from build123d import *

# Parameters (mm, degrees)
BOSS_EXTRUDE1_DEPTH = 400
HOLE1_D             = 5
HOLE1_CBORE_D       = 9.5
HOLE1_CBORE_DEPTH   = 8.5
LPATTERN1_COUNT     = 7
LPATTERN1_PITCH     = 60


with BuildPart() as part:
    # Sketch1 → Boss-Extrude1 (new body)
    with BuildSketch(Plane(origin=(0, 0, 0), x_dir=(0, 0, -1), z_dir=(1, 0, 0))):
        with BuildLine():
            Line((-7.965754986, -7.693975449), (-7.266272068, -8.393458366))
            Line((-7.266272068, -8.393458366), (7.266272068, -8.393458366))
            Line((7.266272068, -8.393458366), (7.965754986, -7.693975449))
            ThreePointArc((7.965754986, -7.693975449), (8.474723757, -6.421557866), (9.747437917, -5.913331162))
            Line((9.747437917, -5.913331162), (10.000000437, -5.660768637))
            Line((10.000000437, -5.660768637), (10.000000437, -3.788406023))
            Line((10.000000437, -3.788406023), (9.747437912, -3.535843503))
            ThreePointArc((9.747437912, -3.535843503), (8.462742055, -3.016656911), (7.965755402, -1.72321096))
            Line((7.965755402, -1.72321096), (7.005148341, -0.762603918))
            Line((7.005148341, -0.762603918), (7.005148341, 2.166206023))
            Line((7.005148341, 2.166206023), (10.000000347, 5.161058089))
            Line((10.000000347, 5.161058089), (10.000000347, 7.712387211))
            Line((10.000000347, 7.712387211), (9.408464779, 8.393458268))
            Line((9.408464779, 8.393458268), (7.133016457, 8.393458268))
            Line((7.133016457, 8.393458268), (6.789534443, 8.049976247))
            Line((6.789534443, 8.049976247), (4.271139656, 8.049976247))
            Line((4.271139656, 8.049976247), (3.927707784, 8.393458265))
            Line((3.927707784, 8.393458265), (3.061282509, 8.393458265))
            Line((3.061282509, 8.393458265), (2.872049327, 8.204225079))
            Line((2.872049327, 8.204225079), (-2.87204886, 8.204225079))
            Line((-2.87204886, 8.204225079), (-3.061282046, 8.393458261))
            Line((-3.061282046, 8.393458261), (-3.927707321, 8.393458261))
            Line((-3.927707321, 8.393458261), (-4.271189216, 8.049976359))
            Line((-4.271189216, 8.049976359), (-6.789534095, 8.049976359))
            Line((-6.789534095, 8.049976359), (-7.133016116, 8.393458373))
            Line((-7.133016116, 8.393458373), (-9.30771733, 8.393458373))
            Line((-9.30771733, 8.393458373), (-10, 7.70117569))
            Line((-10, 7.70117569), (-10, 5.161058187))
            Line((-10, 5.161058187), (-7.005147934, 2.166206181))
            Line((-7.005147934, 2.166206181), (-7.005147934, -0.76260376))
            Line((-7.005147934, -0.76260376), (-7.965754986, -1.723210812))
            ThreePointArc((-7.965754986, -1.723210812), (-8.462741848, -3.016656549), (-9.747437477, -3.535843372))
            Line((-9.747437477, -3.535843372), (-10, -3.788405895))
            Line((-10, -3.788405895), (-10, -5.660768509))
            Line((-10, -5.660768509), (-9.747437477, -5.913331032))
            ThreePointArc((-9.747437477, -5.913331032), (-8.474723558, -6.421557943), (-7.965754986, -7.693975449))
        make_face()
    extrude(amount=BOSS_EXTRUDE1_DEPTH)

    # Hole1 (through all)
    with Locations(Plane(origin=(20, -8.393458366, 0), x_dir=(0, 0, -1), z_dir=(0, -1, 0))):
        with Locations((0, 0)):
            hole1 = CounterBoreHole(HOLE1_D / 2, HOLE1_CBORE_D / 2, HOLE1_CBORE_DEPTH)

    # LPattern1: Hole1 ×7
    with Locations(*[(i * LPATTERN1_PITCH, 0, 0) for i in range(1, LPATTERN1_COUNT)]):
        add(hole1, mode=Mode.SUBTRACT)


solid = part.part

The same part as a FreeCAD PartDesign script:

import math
import FreeCAD as App
import Part
import Sketcher

doc = App.newDocument("Part")
body = doc.addObject("PartDesign::Body", "Body")

# Sketch on YZ plane
sketch1 = body.newObject("Sketcher::SketchObject", "Sketch")
sketch1.AttachmentSupport = (doc.getObject("YZ_Plane"), [""])
sketch1.MapMode = "FlatFace"
sketch1.addGeometry(Part.LineSegment(App.Vector(-7.69, 7.97, 0), App.Vector(-8.39, 7.27, 0)), False)
sketch1.addGeometry(Part.LineSegment(App.Vector(-8.39, 7.27, 0), App.Vector(-8.39, -7.27, 0)), False)
sketch1.addGeometry(Part.LineSegment(App.Vector(-8.39, -7.27, 0), App.Vector(-7.69, -7.97, 0)), False)
sketch1.addGeometry(Part.ArcOfCircle(Part.Circle(App.Vector(-7.65, -9.7, 0), App.Vector(0, 0, 1), 1.74), math.radians(-1), math.radians(91)), False)
sketch1.addGeometry(Part.LineSegment(App.Vector(-5.91, -9.75, 0), App.Vector(-5.66, -10, 0)), False)
sketch1.addGeometry(Part.LineSegment(App.Vector(-5.66, -10, 0), App.Vector(-3.79, -10, 0)), False)
sketch1.addGeometry(Part.LineSegment(App.Vector(-3.79, -10, 0), App.Vector(-3.54, -9.75, 0)), False)
sketch1.addGeometry(Part.ArcOfCircle(Part.Circle(App.Vector(-1.8, -9.7, 0), App.Vector(0, 0, 1), 1.74), math.radians(88), math.radians(181)), False)
sketch1.addGeometry(Part.LineSegment(App.Vector(-1.72, -7.97, 0), App.Vector(-0.76, -7.01, 0)), False)
sketch1.addGeometry(Part.LineSegment(App.Vector(-0.76, -7.01, 0), App.Vector(2.17, -7.01, 0)), False)
sketch1.addGeometry(Part.LineSegment(App.Vector(2.17, -7.01, 0), App.Vector(5.16, -10, 0)), False)
sketch1.addGeometry(Part.LineSegment(App.Vector(5.16, -10, 0), App.Vector(7.71, -10, 0)), False)
sketch1.addGeometry(Part.LineSegment(App.Vector(7.71, -10, 0), App.Vector(8.39, -9.41, 0)), False)
sketch1.addGeometry(Part.LineSegment(App.Vector(8.39, -9.41, 0), App.Vector(8.39, -7.13, 0)), False)
sketch1.addGeometry(Part.LineSegment(App.Vector(8.39, -7.13, 0), App.Vector(8.05, -6.79, 0)), False)
sketch1.addGeometry(Part.LineSegment(App.Vector(8.05, -6.79, 0), App.Vector(8.05, -4.27, 0)), False)
sketch1.addGeometry(Part.LineSegment(App.Vector(8.05, -4.27, 0), App.Vector(8.39, -3.93, 0)), False)
sketch1.addGeometry(Part.LineSegment(App.Vector(8.39, -3.93, 0), App.Vector(8.39, -3.06, 0)), False)
sketch1.addGeometry(Part.LineSegment(App.Vector(8.39, -3.06, 0), App.Vector(8.2, -2.87, 0)), False)
sketch1.addGeometry(Part.LineSegment(App.Vector(8.2, -2.87, 0), App.Vector(8.2, 2.87, 0)), False)
sketch1.addGeometry(Part.LineSegment(App.Vector(8.2, 2.87, 0), App.Vector(8.39, 3.06, 0)), False)
sketch1.addGeometry(Part.LineSegment(App.Vector(8.39, 3.06, 0), App.Vector(8.39, 3.93, 0)), False)
sketch1.addGeometry(Part.LineSegment(App.Vector(8.39, 3.93, 0), App.Vector(8.05, 4.27, 0)), False)
sketch1.addGeometry(Part.LineSegment(App.Vector(8.05, 4.27, 0), App.Vector(8.05, 6.79, 0)), False)
sketch1.addGeometry(Part.LineSegment(App.Vector(8.05, 6.79, 0), App.Vector(8.39, 7.13, 0)), False)
sketch1.addGeometry(Part.LineSegment(App.Vector(8.39, 7.13, 0), App.Vector(8.39, 9.31, 0)), False)
sketch1.addGeometry(Part.LineSegment(App.Vector(8.39, 9.31, 0), App.Vector(7.7, 10, 0)), False)
sketch1.addGeometry(Part.LineSegment(App.Vector(7.7, 10, 0), App.Vector(5.16, 10, 0)), False)
sketch1.addGeometry(Part.LineSegment(App.Vector(5.16, 10, 0), App.Vector(2.17, 7.01, 0)), False)
sketch1.addGeometry(Part.LineSegment(App.Vector(2.17, 7.01, 0), App.Vector(-0.76, 7.01, 0)), False)
sketch1.addGeometry(Part.LineSegment(App.Vector(-0.76, 7.01, 0), App.Vector(-1.72, 7.97, 0)), False)
sketch1.addGeometry(Part.ArcOfCircle(Part.Circle(App.Vector(-1.8, 9.7, 0), App.Vector(0, 0, 1), 1.74), math.radians(179), math.radians(272)), False)
sketch1.addGeometry(Part.LineSegment(App.Vector(-3.54, 9.75, 0), App.Vector(-3.79, 10, 0)), False)
sketch1.addGeometry(Part.LineSegment(App.Vector(-3.79, 10, 0), App.Vector(-5.66, 10, 0)), False)
sketch1.addGeometry(Part.LineSegment(App.Vector(-5.66, 10, 0), App.Vector(-5.91, 9.75, 0)), False)
sketch1.addGeometry(Part.ArcOfCircle(Part.Circle(App.Vector(-7.65, 9.7, 0), App.Vector(0, 0, 1), 1.74), math.radians(-91), math.radians(1)), False)
sketch1.addConstraint(Sketcher.Constraint("Coincident", 0, 2, 1, 1))
sketch1.addConstraint(Sketcher.Constraint("Coincident", 1, 2, 2, 1))
sketch1.addConstraint(Sketcher.Constraint("Coincident", 2, 2, 3, 2))
sketch1.addConstraint(Sketcher.Constraint("Coincident", 3, 1, 4, 1))
sketch1.addConstraint(Sketcher.Constraint("Coincident", 4, 2, 5, 1))
sketch1.addConstraint(Sketcher.Constraint("Coincident", 5, 2, 6, 1))
sketch1.addConstraint(Sketcher.Constraint("Coincident", 6, 2, 7, 2))
sketch1.addConstraint(Sketcher.Constraint("Coincident", 7, 1, 8, 1))
sketch1.addConstraint(Sketcher.Constraint("Coincident", 8, 2, 9, 1))
sketch1.addConstraint(Sketcher.Constraint("Coincident", 9, 2, 10, 1))
sketch1.addConstraint(Sketcher.Constraint("Coincident", 10, 2, 11, 1))
sketch1.addConstraint(Sketcher.Constraint("Coincident", 11, 2, 12, 1))
sketch1.addConstraint(Sketcher.Constraint("Coincident", 12, 2, 13, 1))
sketch1.addConstraint(Sketcher.Constraint("Coincident", 13, 2, 14, 1))
sketch1.addConstraint(Sketcher.Constraint("Coincident", 14, 2, 15, 1))
sketch1.addConstraint(Sketcher.Constraint("Coincident", 15, 2, 16, 1))
sketch1.addConstraint(Sketcher.Constraint("Coincident", 16, 2, 17, 1))
sketch1.addConstraint(Sketcher.Constraint("Coincident", 17, 2, 18, 1))
sketch1.addConstraint(Sketcher.Constraint("Coincident", 18, 2, 19, 1))
sketch1.addConstraint(Sketcher.Constraint("Coincident", 19, 2, 20, 1))
sketch1.addConstraint(Sketcher.Constraint("Coincident", 20, 2, 21, 1))
sketch1.addConstraint(Sketcher.Constraint("Coincident", 21, 2, 22, 1))
sketch1.addConstraint(Sketcher.Constraint("Coincident", 22, 2, 23, 1))
sketch1.addConstraint(Sketcher.Constraint("Coincident", 23, 2, 24, 1))
sketch1.addConstraint(Sketcher.Constraint("Coincident", 24, 2, 25, 1))
sketch1.addConstraint(Sketcher.Constraint("Coincident", 25, 2, 26, 1))
sketch1.addConstraint(Sketcher.Constraint("Coincident", 26, 2, 27, 1))
sketch1.addConstraint(Sketcher.Constraint("Coincident", 27, 2, 28, 1))
sketch1.addConstraint(Sketcher.Constraint("Coincident", 28, 2, 29, 1))
sketch1.addConstraint(Sketcher.Constraint("Coincident", 29, 2, 30, 1))
sketch1.addConstraint(Sketcher.Constraint("Coincident", 30, 2, 31, 2))
sketch1.addConstraint(Sketcher.Constraint("Coincident", 31, 1, 32, 1))
sketch1.addConstraint(Sketcher.Constraint("Coincident", 32, 2, 33, 1))
sketch1.addConstraint(Sketcher.Constraint("Coincident", 33, 2, 34, 1))
sketch1.addConstraint(Sketcher.Constraint("Coincident", 34, 2, 35, 2))
sketch1.addConstraint(Sketcher.Constraint("Coincident", 35, 1, 0, 1))
sketch1.addConstraint(Sketcher.Constraint("Vertical", 1))
sketch1.addConstraint(Sketcher.Constraint("Horizontal", 5))
sketch1.addConstraint(Sketcher.Constraint("Horizontal", 9))
sketch1.addConstraint(Sketcher.Constraint("Horizontal", 11))
sketch1.addConstraint(Sketcher.Constraint("Vertical", 13))
sketch1.addConstraint(Sketcher.Constraint("Vertical", 15))
sketch1.addConstraint(Sketcher.Constraint("Vertical", 17))
sketch1.addConstraint(Sketcher.Constraint("Vertical", 19))
sketch1.addConstraint(Sketcher.Constraint("Vertical", 21))
sketch1.addConstraint(Sketcher.Constraint("Vertical", 23))
sketch1.addConstraint(Sketcher.Constraint("Vertical", 25))
sketch1.addConstraint(Sketcher.Constraint("Horizontal", 27))
sketch1.addConstraint(Sketcher.Constraint("Horizontal", 29))
sketch1.addConstraint(Sketcher.Constraint("Horizontal", 33))
sketch1.addConstraint(Sketcher.Constraint("Equal", 3, 7))
sketch1.addConstraint(Sketcher.Constraint("Equal", 7, 31))
sketch1.addConstraint(Sketcher.Constraint("Equal", 31, 35))
sketch1.addConstraint(Sketcher.Constraint("Symmetric", 7, 3, 31, 3, -1))
sketch1.addConstraint(Sketcher.Constraint("Symmetric", 3, 3, 35, 3, -1))
sketch1.addConstraint(Sketcher.Constraint("Symmetric", 17, 2, 20, 2, -1))
sketch1.addConstraint(Sketcher.Constraint("Symmetric", 14, 2, 23, 2, -1))
sketch1.addConstraint(Sketcher.Constraint("Symmetric", 13, 2, 24, 2, -1))
sketch1.addConstraint(Sketcher.Constraint("Symmetric", 10, 2, 27, 2, -1))
sketch1.addConstraint(Sketcher.Constraint("Symmetric", 9, 2, 28, 2, -1))
sketch1.addConstraint(Sketcher.Constraint("Symmetric", 5, 2, 32, 2, -1))
sketch1.addConstraint(Sketcher.Constraint("Perpendicular", 0, 2))
sketch1.addConstraint(Sketcher.Constraint("Parallel", 2, 4))
sketch1.addConstraint(Sketcher.Constraint("Perpendicular", 4, 6))
sketch1.addConstraint(Sketcher.Constraint("Parallel", 6, 8))
sketch1.addConstraint(Sketcher.Constraint("Perpendicular", 8, 10))
sketch1.addConstraint(Sketcher.Constraint("Parallel", 10, 14))
sketch1.addConstraint(Sketcher.Constraint("Parallel", 14, 18))
sketch1.addConstraint(Sketcher.Constraint("Perpendicular", 18, 20))
sketch1.addConstraint(Sketcher.Constraint("Perpendicular", 20, 22))
sketch1.addConstraint(Sketcher.Constraint("Perpendicular", 22, 24))
sketch1.addConstraint(Sketcher.Constraint("Perpendicular", 24, 26))
sketch1.addConstraint(Sketcher.Constraint("Perpendicular", 28, 30))
sketch1.addConstraint(Sketcher.Constraint("Parallel", 30, 32))
sketch1.addConstraint(Sketcher.Constraint("Perpendicular", 32, 34))
sketch1.addConstraint(Sketcher.Constraint("Horizontal", 3, 1, 6, 2))
sketch1.addConstraint(Sketcher.Constraint("Horizontal", 2, 2, 7, 1))
sketch1.addConstraint(Sketcher.Constraint("Horizontal", 5, 2, 10, 2))
sketch1.addConstraint(Sketcher.Constraint("Horizontal", 31, 1, 34, 2))
sketch1.addConstraint(Sketcher.Constraint("Horizontal", 30, 2, 35, 1))
sketch1.addConstraint(Sketcher.Constraint("Vertical", 13, 2, 16, 2))
sketch1.addConstraint(Sketcher.Constraint("Vertical", 8, 2, 29, 2))
sketch1.addConstraint(Sketcher.Constraint("Equal", 17, 21))
sketch1.addConstraint(Sketcher.Constraint("DistanceY", 4, 2, -1, 1, 10.0))
sketch1.addConstraint(Sketcher.Constraint("Radius", 3, 1.738311))
sketch1.addConstraint(Sketcher.Constraint("DistanceY", 19, 1, 19, 2, 5.744098))
sketch1.addConstraint(Sketcher.Constraint("DistanceY", 25, 1, 25, 2, 2.174701))
sketch1.addConstraint(Sketcher.Constraint("DistanceX", 9, 1, 9, 2, 2.92881))
sketch1.addConstraint(Sketcher.Constraint("DistanceX", 11, 1, 11, 2, 2.551329))
sketch1.addConstraint(Sketcher.Constraint("DistanceY", 13, 1, 13, 2, 2.275448))
sketch1.addConstraint(Sketcher.Constraint("DistanceY", 3, 1, 3, 3, 0.043901))
sketch1.addConstraint(Sketcher.Constraint("DistanceX", 6, 2, 10, 2, 8.696902))
sketch1.addConstraint(Sketcher.Constraint("DistanceX", 7, 1, 11, 2, 9.435598))
sketch1.addConstraint(Sketcher.Constraint("DistanceX", 10, 2, 12, 2, 3.2324))
sketch1.addConstraint(Sketcher.Constraint("DistanceX", 26, 2, 23, 2, 0.348801))
sketch1.addConstraint(Sketcher.Constraint("Distance", 0, 0.989218))
sketch1.addConstraint(Sketcher.Constraint("Distance", 10, 4.23536))
sketch1.addConstraint(Sketcher.Constraint("Distance", 16, 0.485721))
sketch1.addConstraint(Sketcher.Constraint("DistanceX", 5, 1, 5, 2, 1.872363))
sketch1.addConstraint(Sketcher.Constraint("DistanceX", 27, 2, 27, 1, 2.540118))
sketch1.addConstraint(Sketcher.Constraint("DistanceY", 15, 1, 15, 2, 2.518395))
sketch1.addConstraint(Sketcher.Constraint("DistanceY", 17, 1, 17, 2, 0.866425))
sketch1.addConstraint(Sketcher.Constraint("DistanceX", 0, 2, -1, 1, 8.393458))
sketch1.addConstraint(Sketcher.Constraint("DistanceX", 3, 1, -1, 1, 5.913331))
pad1 = body.newObject("PartDesign::Pad", "Pad")
pad1.Profile = sketch1
pad1.Length = 400

# Sketch on XZ plane
sketch2 = body.newObject("Sketcher::SketchObject", "Sketch001")
sketch2.AttachmentSupport = (doc.getObject("XZ_Plane"), [""])
sketch2.MapMode = "FlatFace"
sketch2.AttachmentOffset = App.Placement(App.Vector(0, 0, 8.393458), App.Rotation())
sketch2.addGeometry(Part.Circle(App.Vector(20, 0, 0), App.Vector(0, 0, 1), 2.5), False)
sketch2.addConstraint(Sketcher.Constraint("PointOnObject", 0, 3, -1))
sketch2.addConstraint(Sketcher.Constraint("Diameter", 0, 5.0))
sketch2.addConstraint(Sketcher.Constraint("DistanceX", -1, 1, 0, 3, 20.0))
doc.recompute()
hole = body.newObject("PartDesign::Hole", "Hole")
hole.Profile = sketch2
hole.ThreadType = "None"
hole.Diameter = 5
hole.DepthType = "ThroughAll"
hole.HoleCutType = "Counterbore"
hole.HoleCutDiameter = 9.5
hole.HoleCutDepth = 8.5
doc.recompute()

linearpattern = body.newObject("PartDesign::LinearPattern", "LinearPattern")
linearpattern.Originals = [hole]
linearpattern.Direction = (doc.getObject("X_Axis"), [""])
linearpattern.Mode = "offset"
linearpattern.Offset = 60
linearpattern.Occurrences = 7
body.Tip = linearpattern

doc.recompute()
